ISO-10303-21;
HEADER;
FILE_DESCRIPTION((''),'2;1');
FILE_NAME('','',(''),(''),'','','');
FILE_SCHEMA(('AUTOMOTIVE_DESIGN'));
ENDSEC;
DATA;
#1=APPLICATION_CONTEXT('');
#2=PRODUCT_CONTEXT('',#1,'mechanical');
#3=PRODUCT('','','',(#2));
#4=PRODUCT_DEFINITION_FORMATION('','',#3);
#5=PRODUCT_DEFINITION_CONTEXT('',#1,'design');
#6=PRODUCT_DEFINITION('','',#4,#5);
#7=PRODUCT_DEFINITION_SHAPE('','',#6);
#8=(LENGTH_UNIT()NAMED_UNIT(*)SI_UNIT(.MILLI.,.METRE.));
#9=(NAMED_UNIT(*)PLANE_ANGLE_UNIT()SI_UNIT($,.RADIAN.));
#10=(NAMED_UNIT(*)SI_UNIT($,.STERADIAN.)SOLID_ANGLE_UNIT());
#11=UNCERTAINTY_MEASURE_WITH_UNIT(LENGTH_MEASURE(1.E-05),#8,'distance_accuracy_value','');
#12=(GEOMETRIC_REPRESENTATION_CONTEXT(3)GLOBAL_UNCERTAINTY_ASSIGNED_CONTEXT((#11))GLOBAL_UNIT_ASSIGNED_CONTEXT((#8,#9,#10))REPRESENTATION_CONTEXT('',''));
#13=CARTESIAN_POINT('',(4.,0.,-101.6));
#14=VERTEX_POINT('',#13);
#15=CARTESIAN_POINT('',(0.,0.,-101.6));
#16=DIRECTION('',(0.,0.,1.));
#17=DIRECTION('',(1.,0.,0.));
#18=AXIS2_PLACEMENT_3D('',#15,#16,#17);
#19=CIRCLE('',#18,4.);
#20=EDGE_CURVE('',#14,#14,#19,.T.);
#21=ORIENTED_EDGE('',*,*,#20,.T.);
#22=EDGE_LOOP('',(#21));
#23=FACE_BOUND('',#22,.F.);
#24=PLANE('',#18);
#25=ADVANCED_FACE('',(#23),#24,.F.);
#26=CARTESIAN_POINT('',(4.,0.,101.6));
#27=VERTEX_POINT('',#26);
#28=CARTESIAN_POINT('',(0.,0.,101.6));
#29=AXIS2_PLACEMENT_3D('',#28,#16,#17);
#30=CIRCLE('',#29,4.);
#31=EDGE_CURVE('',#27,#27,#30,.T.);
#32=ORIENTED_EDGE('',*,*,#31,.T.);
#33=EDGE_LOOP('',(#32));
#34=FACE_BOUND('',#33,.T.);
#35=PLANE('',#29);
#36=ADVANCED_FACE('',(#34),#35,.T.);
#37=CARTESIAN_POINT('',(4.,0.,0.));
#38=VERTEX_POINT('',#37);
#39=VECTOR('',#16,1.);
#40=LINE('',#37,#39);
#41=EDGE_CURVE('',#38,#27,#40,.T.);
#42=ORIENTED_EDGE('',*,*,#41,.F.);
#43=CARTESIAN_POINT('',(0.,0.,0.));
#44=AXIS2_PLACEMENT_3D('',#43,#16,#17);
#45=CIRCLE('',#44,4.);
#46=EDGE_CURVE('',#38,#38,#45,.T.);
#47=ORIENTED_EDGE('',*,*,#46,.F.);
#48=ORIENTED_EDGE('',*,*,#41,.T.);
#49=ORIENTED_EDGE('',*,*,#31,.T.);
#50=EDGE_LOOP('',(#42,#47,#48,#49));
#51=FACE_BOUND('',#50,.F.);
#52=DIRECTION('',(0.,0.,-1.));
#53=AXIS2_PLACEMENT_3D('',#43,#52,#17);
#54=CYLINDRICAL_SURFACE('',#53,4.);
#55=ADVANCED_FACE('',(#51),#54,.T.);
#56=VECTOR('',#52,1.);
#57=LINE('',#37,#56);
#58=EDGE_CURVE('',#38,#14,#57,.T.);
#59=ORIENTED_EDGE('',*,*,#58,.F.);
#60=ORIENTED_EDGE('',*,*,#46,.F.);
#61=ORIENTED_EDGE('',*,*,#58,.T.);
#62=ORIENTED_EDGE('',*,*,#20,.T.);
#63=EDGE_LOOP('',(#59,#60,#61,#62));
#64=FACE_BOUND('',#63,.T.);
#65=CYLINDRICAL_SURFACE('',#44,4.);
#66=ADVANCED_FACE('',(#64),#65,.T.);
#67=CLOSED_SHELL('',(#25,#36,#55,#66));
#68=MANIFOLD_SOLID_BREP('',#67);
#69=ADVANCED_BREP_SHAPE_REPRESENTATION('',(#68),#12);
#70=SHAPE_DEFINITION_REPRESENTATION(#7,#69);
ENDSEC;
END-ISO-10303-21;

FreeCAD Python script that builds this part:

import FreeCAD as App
import Part
import Sketcher
Q = App.Units.Quantity

doc = App.newDocument("Part")
body = doc.addObject("PartDesign::Body", "Body")

sketch1 = body.newObject("Sketcher::SketchObject", "Sketch")
sketch1.AttachmentSupport = (doc.getObject("XY_Plane"), [""])
sketch1.MapMode = "FlatFace"
sketch1.addGeometry(Part.Circle(App.Vector(0, 0, 0), App.Vector(0, 0, 1), 4), False)
sketch1.addConstraint([
    Sketcher.Constraint("Coincident", 0, 3, -1, 1),
    Sketcher.Constraint("Diameter", 0, Q("8 mm")),
])
pad1 = body.newObject("PartDesign::Pad", "Pad")
pad1.Profile = sketch1
pad1.Length = 203.2
pad1.Midplane = True

doc.recompute()
